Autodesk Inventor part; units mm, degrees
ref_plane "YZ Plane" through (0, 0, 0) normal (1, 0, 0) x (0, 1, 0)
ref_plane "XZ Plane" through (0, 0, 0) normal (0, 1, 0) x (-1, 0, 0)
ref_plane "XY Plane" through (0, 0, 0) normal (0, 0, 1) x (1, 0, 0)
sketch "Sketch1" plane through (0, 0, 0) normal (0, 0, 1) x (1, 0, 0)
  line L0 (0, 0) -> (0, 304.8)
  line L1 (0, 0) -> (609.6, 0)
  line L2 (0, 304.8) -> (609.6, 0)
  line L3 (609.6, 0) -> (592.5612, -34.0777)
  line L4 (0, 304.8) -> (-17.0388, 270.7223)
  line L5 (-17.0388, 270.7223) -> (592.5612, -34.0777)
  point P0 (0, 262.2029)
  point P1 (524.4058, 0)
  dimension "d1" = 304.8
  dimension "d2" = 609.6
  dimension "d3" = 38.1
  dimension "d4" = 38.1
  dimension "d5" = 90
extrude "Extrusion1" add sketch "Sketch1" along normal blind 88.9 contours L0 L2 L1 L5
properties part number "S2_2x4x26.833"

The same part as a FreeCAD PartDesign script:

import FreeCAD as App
import Part
import Sketcher

V = App.Vector
Q = App.Units.Quantity

doc = App.newDocument("Part")
params = doc.addObject("Spreadsheet::Sheet", "Params")
for row, (alias, value) in enumerate([
    ("pad1_length", "3.5 in"),
], start=1):
    params.set(f"A{row}", alias)
    params.set(f"B{row}", "=" + value)
    params.setAlias(f"B{row}", alias)

body = doc.addObject("PartDesign::Body", "Body")

# Sketch on XY plane
sketch1 = body.newObject("Sketcher::SketchObject", "Sketch")
sketch1.AttachmentSupport = (doc.getObject("XY_Plane"), [""])
sketch1.MapMode = "FlatFace"
sketch1.addGeometry([
    Part.LineSegment(V(0, 305, 0), V(0, 262, 0)),
    Part.LineSegment(V(0, 262, 0), V(524, 0, 0)),
    Part.LineSegment(V(524, 0, 0), V(610, 0, 0)),
    Part.LineSegment(V(610, 0, 0), V(0, 305, 0)),
], False)
sketch1.addConstraint([
    Sketcher.Constraint("Coincident", 0, 2, 1, 1),
    Sketcher.Constraint("Coincident", 1, 2, 2, 1),
    Sketcher.Constraint("Coincident", 2, 2, 3, 1),
    Sketcher.Constraint("Coincident", 3, 2, 0, 1),
    Sketcher.Constraint("Vertical", 0),
    Sketcher.Constraint("Horizontal", 2),
    Sketcher.Constraint("PointOnObject", 0, 2, -2),
    Sketcher.Constraint("PointOnObject", 1, 2, -1),
    Sketcher.Constraint("Parallel", 1, 3),
    Sketcher.Constraint("DistanceX", -1, 1, 2, 2, Q("24 in")),
    Sketcher.Constraint("DistanceY", -1, 1, 3, 2, Q("12 in")),
    Sketcher.Constraint("DistanceX", 2, 1, 2, 2, Q("3.3541 in")),
])
pad1 = body.newObject("PartDesign::Pad", "Pad")
pad1.Profile = sketch1
pad1.setExpression("Length", "Params.pad1_length")

doc.recompute()
